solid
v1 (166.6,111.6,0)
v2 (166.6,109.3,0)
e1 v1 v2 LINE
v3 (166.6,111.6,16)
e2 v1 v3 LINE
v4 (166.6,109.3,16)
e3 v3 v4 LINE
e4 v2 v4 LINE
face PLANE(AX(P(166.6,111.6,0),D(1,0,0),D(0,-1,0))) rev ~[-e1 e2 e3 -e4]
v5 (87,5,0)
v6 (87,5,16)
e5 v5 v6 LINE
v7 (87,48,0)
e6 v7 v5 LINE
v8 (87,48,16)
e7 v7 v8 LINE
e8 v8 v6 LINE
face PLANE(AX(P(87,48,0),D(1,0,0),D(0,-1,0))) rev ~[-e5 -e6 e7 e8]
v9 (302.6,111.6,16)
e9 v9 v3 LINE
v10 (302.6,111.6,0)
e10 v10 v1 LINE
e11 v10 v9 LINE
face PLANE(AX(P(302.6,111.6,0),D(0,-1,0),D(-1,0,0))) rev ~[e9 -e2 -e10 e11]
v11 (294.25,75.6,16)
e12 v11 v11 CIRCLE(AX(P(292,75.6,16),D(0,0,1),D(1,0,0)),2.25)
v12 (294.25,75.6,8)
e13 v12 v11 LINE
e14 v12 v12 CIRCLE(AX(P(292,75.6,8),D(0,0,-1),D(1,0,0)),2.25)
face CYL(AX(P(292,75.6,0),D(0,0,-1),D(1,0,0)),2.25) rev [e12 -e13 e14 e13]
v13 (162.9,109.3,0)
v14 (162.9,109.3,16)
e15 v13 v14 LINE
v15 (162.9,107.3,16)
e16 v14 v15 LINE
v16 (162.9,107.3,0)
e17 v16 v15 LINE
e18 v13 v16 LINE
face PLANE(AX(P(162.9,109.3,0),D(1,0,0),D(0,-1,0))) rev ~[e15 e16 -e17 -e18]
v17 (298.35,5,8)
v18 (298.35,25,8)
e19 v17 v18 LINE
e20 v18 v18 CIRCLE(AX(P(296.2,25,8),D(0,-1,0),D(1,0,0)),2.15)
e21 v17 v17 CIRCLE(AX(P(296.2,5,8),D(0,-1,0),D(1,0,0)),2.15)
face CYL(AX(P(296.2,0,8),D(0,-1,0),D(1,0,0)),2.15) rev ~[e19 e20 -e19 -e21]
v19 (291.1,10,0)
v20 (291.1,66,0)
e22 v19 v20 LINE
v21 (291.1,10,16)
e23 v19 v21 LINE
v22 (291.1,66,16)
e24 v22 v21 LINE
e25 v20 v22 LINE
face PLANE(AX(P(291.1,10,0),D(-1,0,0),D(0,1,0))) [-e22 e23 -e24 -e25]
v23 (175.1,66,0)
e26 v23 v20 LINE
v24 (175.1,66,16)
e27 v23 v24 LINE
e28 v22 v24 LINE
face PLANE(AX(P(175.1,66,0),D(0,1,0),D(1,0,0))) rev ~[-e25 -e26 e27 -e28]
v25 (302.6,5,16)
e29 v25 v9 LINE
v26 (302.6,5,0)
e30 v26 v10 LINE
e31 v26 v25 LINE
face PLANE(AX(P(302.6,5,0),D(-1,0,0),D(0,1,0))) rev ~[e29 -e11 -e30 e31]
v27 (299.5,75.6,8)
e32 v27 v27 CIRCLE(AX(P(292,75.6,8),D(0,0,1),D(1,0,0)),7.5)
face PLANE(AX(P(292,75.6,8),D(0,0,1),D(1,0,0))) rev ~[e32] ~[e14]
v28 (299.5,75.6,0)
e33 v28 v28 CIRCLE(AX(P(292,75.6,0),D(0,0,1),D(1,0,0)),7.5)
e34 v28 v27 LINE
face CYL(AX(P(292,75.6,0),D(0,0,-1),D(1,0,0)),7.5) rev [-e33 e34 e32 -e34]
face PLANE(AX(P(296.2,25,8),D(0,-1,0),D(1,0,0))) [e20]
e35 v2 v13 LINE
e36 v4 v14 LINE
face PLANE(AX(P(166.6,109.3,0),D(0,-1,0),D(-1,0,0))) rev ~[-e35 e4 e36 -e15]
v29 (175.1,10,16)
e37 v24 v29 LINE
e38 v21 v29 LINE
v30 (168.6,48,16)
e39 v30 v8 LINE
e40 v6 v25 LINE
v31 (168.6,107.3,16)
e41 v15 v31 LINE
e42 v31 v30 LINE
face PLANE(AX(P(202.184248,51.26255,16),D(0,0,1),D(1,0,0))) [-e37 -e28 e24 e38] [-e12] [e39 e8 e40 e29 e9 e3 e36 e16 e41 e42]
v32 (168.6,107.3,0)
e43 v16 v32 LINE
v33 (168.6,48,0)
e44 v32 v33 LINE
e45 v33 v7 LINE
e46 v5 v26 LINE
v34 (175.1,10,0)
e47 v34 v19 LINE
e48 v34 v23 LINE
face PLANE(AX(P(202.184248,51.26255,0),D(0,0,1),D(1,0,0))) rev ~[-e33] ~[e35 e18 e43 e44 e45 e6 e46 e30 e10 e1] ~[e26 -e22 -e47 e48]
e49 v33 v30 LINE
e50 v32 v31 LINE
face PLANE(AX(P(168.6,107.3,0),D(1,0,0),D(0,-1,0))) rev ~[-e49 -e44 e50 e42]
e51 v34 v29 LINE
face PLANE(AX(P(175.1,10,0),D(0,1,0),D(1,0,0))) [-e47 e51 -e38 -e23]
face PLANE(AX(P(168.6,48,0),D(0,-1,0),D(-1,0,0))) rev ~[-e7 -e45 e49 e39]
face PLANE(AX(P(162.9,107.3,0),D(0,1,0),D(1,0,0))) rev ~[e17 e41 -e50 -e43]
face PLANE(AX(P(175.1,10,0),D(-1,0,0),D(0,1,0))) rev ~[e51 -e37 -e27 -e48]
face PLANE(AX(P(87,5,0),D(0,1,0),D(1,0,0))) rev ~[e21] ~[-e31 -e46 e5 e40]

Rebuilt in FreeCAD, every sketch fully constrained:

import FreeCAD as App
import Part
import Sketcher
from FreeCAD import Vector
Q = App.Units.Quantity

doc = App.newDocument("Part")
body = doc.addObject("PartDesign::Body", "Body")

# Sketch on XY plane
sketch1 = doc.addObject("Sketcher::SketchObject", "Sketch")
body.addObject(sketch1)
sketch1.AttachmentSupport = (doc.XY_Plane, [""])
sketch1.MapMode = "FlatFace"
sketch1.addGeometry([
    Part.LineSegment(Vector(87, 5, 0), Vector(302.6, 5, 0)),  # 0
    Part.LineSegment(Vector(302.6, 5, 0), Vector(302.6, 111.6, 0)),  # 1
    Part.LineSegment(Vector(302.6, 111.6, 0), Vector(166.6, 111.6, 0)),  # 2
    Part.LineSegment(Vector(166.6, 111.6, 0), Vector(166.6, 109.3, 0)),  # 3
    Part.LineSegment(Vector(166.6, 109.3, 0), Vector(162.9, 109.3, 0)),  # 4
    Part.LineSegment(Vector(162.9, 109.3, 0), Vector(162.9, 107.3, 0)),  # 5
    Part.LineSegment(Vector(162.9, 107.3, 0), Vector(168.6, 107.3, 0)),  # 6
    Part.LineSegment(Vector(168.6, 107.3, 0), Vector(168.6, 48, 0)),  # 7
    Part.LineSegment(Vector(168.6, 48, 0), Vector(87, 48, 0)),  # 8
    Part.LineSegment(Vector(87, 48, 0), Vector(87, 5, 0)),  # 9
    Part.Circle(Vector(292, 75.6, 0), Vector(0, 0, 1), 2.2),  # 10
], False)
sketch1.addConstraint([
    Sketcher.Constraint("Coincident", 0, 2, 1, 1),
    Sketcher.Constraint("Coincident", 1, 2, 2, 1),
    Sketcher.Constraint("Coincident", 2, 2, 3, 1),
    Sketcher.Constraint("Coincident", 3, 2, 4, 1),
    Sketcher.Constraint("Coincident", 4, 2, 5, 1),
    Sketcher.Constraint("Coincident", 5, 2, 6, 1),
    Sketcher.Constraint("Coincident", 6, 2, 7, 1),
    Sketcher.Constraint("Coincident", 7, 2, 8, 1),
    Sketcher.Constraint("Coincident", 8, 2, 9, 1),
    Sketcher.Constraint("Coincident", 9, 2, 0, 1),
    Sketcher.Constraint("Horizontal", 0),
    Sketcher.Constraint("Vertical", 1),
    Sketcher.Constraint("Horizontal", 2),
    Sketcher.Constraint("Vertical", 3),
    Sketcher.Constraint("Horizontal", 4),
    Sketcher.Constraint("Vertical", 5),
    Sketcher.Constraint("Horizontal", 6),
    Sketcher.Constraint("Vertical", 7),
    Sketcher.Constraint("Horizontal", 8),
    Sketcher.Constraint("Vertical", 9),
    Sketcher.Constraint("Diameter", 10, Q("4.5 mm")),
    Sketcher.Constraint("DistanceX", 2, 2, 2, 1, Q("136 mm")),
    Sketcher.Constraint("DistanceY", 5, 2, 5, 1, Q("2 mm")),
    Sketcher.Constraint("DistanceY", 9, 2, 9, 1, Q("43 mm")),
    Sketcher.Constraint("DistanceX", 0, 1, 0, 2, Q("215.6 mm")),
    Sketcher.Constraint("DistanceX", 4, 2, 4, 1, Q("3.7 mm")),
    Sketcher.Constraint("DistanceX", 6, 1, 6, 2, Q("5.7 mm")),
    Sketcher.Constraint("DistanceY", 1, 1, 1, 2, Q("106.6 mm")),
    Sketcher.Constraint("DistanceY", 3, 2, 3, 1, Q("2.3 mm")),
    Sketcher.Constraint("DistanceX", -1, 1, 10, 3, Q("292 mm")),
    Sketcher.Constraint("DistanceY", -1, 1, 0, 2, Q("5 mm")),
    Sketcher.Constraint("DistanceX", -1, 1, 8, 2, Q("87 mm")),
    Sketcher.Constraint("DistanceY", 10, 3, 1, 2, Q("36 mm")),
])
pad1 = doc.addObject("PartDesign::Pad", "Pad")
body.addObject(pad1)
pad1.Profile = sketch1
pad1.Length = 16

# Sketch on XY plane
sketch2 = doc.addObject("Sketcher::SketchObject", "Sketch001")
body.addObject(sketch2)
sketch2.AttachmentSupport = (doc.XY_Plane, [""])
sketch2.MapMode = "FlatFace"
sketch2.addGeometry([
    Part.LineSegment(Vector(175, 66, 0), Vector(175, 10, 0)),
    Part.LineSegment(Vector(175, 10, 0), Vector(291, 10, 0)),
    Part.LineSegment(Vector(291, 10, 0), Vector(291, 66, 0)),
    Part.LineSegment(Vector(291, 66, 0), Vector(175, 66, 0)),
], False)
sketch2.addConstraint([
    Sketcher.Constraint("Coincident", 0, 2, 1, 1),
    Sketcher.Constraint("Coincident", 1, 2, 2, 1),
    Sketcher.Constraint("Coincident", 2, 2, 3, 1),
    Sketcher.Constraint("Coincident", 3, 2, 0, 1),
    Sketcher.Constraint("Vertical", 0),
    Sketcher.Constraint("Horizontal", 1),
    Sketcher.Constraint("Vertical", 2),
    Sketcher.Constraint("Horizontal", 3),
    Sketcher.Constraint("DistanceX", 1, 1, 1, 2, Q("116 mm")),
    Sketcher.Constraint("DistanceY", 0, 2, 0, 1, Q("56 mm")),
    Sketcher.Constraint("DistanceY", -1, 1, 0, 2, Q("10 mm")),
    Sketcher.Constraint("DistanceX", -1, 1, 0, 2, Q("175.1 mm")),
])
pocket1 = doc.addObject("PartDesign::Pocket", "Pocket")
body.addObject(pocket1)
pocket1.Profile = sketch2
pocket1.Type = "ThroughAll"
pocket1.Midplane = True

# Sketch on XY plane
sketch3 = doc.addObject("Sketcher::SketchObject", "Sketch002")
body.addObject(sketch3)
sketch3.AttachmentSupport = (doc.XY_Plane, [""])
sketch3.MapMode = "FlatFace"
sketch3.AttachmentOffset = App.Placement(Vector(0, 0, 24), App.Rotation())
sketch3.addGeometry([
    Part.LineSegment(Vector(169, 67, 0), Vector(169, 5, 0)),
    Part.LineSegment(Vector(169, 5, 0), Vector(298, 5, 0)),
    Part.LineSegment(Vector(298, 5, 0), Vector(298, 67, 0)),
    Part.LineSegment(Vector(298, 67, 0), Vector(169, 67, 0)),
], False)
sketch3.addConstraint([
    Sketcher.Constraint("Coincident", 0, 2, 1, 1),
    Sketcher.Constraint("Coincident", 1, 2, 2, 1),
    Sketcher.Constraint("Coincident", 2, 2, 3, 1),
    Sketcher.Constraint("Coincident", 3, 2, 0, 1),
    Sketcher.Constraint("Vertical", 0),
    Sketcher.Constraint("Horizontal", 1),
    Sketcher.Constraint("Vertical", 2),
    Sketcher.Constraint("Horizontal", 3),
    Sketcher.Constraint("DistanceX", 1, 1, 1, 2, Q("129 mm")),
    Sketcher.Constraint("DistanceY", 0, 2, 0, 1, Q("62 mm")),
    Sketcher.Constraint("DistanceY", -1, 1, 0, 2, Q("5 mm")),
    Sketcher.Constraint("DistanceX", -1, 1, 0, 2, Q("168.6 mm")),
])
pocket2 = doc.addObject("PartDesign::Pocket", "Pocket001")
body.addObject(pocket2)
pocket2.Profile = sketch3
pocket2.Length = 6

# Sketch on XY plane
sketch4 = doc.addObject("Sketcher::SketchObject", "Sketch003")
body.addObject(sketch4)
sketch4.AttachmentSupport = (doc.XY_Plane, [""])
sketch4.MapMode = "FlatFace"
sketch4.addGeometry(Part.Circle(Vector(292, 76, 0), Vector(0, 0, 1), 8), False)
sketch4.addConstraint([
    Sketcher.Constraint("Diameter", 0, Q("15 mm")),
    Sketcher.Constraint("DistanceX", -1, 1, 0, 3, Q("292 mm")),
    Sketcher.Constraint("DistanceY", -1, 1, 0, 3, Q("75.6 mm")),
])
pocket3 = doc.addObject("PartDesign::Pocket", "Pocket002")
body.addObject(pocket3)
pocket3.Profile = sketch4
pocket3.Length = 8
pocket3.Reversed = True

# Sketch on XZ plane
sketch5 = doc.addObject("Sketcher::SketchObject", "Sketch004")
body.addObject(sketch5)
sketch5.AttachmentSupport = (doc.XZ_Plane, [""])
sketch5.MapMode = "FlatFace"
sketch5.addGeometry(Part.Circle(Vector(296.2, 8, 0), Vector(0, 0, 1), 2.1), False)
sketch5.addConstraint([
    Sketcher.Constraint("Diameter", 0, Q("4.3 mm")),
    Sketcher.Constraint("DistanceY", -1, 1, 0, 3, Q("8 mm")),
    Sketcher.Constraint("DistanceX", -1, 1, 0, 3, Q("296.2 mm")),
])
pocket4 = doc.addObject("PartDesign::Pocket", "Pocket003")
body.addObject(pocket4)
pocket4.Profile = sketch5
pocket4.Length = 25

doc.recompute()
